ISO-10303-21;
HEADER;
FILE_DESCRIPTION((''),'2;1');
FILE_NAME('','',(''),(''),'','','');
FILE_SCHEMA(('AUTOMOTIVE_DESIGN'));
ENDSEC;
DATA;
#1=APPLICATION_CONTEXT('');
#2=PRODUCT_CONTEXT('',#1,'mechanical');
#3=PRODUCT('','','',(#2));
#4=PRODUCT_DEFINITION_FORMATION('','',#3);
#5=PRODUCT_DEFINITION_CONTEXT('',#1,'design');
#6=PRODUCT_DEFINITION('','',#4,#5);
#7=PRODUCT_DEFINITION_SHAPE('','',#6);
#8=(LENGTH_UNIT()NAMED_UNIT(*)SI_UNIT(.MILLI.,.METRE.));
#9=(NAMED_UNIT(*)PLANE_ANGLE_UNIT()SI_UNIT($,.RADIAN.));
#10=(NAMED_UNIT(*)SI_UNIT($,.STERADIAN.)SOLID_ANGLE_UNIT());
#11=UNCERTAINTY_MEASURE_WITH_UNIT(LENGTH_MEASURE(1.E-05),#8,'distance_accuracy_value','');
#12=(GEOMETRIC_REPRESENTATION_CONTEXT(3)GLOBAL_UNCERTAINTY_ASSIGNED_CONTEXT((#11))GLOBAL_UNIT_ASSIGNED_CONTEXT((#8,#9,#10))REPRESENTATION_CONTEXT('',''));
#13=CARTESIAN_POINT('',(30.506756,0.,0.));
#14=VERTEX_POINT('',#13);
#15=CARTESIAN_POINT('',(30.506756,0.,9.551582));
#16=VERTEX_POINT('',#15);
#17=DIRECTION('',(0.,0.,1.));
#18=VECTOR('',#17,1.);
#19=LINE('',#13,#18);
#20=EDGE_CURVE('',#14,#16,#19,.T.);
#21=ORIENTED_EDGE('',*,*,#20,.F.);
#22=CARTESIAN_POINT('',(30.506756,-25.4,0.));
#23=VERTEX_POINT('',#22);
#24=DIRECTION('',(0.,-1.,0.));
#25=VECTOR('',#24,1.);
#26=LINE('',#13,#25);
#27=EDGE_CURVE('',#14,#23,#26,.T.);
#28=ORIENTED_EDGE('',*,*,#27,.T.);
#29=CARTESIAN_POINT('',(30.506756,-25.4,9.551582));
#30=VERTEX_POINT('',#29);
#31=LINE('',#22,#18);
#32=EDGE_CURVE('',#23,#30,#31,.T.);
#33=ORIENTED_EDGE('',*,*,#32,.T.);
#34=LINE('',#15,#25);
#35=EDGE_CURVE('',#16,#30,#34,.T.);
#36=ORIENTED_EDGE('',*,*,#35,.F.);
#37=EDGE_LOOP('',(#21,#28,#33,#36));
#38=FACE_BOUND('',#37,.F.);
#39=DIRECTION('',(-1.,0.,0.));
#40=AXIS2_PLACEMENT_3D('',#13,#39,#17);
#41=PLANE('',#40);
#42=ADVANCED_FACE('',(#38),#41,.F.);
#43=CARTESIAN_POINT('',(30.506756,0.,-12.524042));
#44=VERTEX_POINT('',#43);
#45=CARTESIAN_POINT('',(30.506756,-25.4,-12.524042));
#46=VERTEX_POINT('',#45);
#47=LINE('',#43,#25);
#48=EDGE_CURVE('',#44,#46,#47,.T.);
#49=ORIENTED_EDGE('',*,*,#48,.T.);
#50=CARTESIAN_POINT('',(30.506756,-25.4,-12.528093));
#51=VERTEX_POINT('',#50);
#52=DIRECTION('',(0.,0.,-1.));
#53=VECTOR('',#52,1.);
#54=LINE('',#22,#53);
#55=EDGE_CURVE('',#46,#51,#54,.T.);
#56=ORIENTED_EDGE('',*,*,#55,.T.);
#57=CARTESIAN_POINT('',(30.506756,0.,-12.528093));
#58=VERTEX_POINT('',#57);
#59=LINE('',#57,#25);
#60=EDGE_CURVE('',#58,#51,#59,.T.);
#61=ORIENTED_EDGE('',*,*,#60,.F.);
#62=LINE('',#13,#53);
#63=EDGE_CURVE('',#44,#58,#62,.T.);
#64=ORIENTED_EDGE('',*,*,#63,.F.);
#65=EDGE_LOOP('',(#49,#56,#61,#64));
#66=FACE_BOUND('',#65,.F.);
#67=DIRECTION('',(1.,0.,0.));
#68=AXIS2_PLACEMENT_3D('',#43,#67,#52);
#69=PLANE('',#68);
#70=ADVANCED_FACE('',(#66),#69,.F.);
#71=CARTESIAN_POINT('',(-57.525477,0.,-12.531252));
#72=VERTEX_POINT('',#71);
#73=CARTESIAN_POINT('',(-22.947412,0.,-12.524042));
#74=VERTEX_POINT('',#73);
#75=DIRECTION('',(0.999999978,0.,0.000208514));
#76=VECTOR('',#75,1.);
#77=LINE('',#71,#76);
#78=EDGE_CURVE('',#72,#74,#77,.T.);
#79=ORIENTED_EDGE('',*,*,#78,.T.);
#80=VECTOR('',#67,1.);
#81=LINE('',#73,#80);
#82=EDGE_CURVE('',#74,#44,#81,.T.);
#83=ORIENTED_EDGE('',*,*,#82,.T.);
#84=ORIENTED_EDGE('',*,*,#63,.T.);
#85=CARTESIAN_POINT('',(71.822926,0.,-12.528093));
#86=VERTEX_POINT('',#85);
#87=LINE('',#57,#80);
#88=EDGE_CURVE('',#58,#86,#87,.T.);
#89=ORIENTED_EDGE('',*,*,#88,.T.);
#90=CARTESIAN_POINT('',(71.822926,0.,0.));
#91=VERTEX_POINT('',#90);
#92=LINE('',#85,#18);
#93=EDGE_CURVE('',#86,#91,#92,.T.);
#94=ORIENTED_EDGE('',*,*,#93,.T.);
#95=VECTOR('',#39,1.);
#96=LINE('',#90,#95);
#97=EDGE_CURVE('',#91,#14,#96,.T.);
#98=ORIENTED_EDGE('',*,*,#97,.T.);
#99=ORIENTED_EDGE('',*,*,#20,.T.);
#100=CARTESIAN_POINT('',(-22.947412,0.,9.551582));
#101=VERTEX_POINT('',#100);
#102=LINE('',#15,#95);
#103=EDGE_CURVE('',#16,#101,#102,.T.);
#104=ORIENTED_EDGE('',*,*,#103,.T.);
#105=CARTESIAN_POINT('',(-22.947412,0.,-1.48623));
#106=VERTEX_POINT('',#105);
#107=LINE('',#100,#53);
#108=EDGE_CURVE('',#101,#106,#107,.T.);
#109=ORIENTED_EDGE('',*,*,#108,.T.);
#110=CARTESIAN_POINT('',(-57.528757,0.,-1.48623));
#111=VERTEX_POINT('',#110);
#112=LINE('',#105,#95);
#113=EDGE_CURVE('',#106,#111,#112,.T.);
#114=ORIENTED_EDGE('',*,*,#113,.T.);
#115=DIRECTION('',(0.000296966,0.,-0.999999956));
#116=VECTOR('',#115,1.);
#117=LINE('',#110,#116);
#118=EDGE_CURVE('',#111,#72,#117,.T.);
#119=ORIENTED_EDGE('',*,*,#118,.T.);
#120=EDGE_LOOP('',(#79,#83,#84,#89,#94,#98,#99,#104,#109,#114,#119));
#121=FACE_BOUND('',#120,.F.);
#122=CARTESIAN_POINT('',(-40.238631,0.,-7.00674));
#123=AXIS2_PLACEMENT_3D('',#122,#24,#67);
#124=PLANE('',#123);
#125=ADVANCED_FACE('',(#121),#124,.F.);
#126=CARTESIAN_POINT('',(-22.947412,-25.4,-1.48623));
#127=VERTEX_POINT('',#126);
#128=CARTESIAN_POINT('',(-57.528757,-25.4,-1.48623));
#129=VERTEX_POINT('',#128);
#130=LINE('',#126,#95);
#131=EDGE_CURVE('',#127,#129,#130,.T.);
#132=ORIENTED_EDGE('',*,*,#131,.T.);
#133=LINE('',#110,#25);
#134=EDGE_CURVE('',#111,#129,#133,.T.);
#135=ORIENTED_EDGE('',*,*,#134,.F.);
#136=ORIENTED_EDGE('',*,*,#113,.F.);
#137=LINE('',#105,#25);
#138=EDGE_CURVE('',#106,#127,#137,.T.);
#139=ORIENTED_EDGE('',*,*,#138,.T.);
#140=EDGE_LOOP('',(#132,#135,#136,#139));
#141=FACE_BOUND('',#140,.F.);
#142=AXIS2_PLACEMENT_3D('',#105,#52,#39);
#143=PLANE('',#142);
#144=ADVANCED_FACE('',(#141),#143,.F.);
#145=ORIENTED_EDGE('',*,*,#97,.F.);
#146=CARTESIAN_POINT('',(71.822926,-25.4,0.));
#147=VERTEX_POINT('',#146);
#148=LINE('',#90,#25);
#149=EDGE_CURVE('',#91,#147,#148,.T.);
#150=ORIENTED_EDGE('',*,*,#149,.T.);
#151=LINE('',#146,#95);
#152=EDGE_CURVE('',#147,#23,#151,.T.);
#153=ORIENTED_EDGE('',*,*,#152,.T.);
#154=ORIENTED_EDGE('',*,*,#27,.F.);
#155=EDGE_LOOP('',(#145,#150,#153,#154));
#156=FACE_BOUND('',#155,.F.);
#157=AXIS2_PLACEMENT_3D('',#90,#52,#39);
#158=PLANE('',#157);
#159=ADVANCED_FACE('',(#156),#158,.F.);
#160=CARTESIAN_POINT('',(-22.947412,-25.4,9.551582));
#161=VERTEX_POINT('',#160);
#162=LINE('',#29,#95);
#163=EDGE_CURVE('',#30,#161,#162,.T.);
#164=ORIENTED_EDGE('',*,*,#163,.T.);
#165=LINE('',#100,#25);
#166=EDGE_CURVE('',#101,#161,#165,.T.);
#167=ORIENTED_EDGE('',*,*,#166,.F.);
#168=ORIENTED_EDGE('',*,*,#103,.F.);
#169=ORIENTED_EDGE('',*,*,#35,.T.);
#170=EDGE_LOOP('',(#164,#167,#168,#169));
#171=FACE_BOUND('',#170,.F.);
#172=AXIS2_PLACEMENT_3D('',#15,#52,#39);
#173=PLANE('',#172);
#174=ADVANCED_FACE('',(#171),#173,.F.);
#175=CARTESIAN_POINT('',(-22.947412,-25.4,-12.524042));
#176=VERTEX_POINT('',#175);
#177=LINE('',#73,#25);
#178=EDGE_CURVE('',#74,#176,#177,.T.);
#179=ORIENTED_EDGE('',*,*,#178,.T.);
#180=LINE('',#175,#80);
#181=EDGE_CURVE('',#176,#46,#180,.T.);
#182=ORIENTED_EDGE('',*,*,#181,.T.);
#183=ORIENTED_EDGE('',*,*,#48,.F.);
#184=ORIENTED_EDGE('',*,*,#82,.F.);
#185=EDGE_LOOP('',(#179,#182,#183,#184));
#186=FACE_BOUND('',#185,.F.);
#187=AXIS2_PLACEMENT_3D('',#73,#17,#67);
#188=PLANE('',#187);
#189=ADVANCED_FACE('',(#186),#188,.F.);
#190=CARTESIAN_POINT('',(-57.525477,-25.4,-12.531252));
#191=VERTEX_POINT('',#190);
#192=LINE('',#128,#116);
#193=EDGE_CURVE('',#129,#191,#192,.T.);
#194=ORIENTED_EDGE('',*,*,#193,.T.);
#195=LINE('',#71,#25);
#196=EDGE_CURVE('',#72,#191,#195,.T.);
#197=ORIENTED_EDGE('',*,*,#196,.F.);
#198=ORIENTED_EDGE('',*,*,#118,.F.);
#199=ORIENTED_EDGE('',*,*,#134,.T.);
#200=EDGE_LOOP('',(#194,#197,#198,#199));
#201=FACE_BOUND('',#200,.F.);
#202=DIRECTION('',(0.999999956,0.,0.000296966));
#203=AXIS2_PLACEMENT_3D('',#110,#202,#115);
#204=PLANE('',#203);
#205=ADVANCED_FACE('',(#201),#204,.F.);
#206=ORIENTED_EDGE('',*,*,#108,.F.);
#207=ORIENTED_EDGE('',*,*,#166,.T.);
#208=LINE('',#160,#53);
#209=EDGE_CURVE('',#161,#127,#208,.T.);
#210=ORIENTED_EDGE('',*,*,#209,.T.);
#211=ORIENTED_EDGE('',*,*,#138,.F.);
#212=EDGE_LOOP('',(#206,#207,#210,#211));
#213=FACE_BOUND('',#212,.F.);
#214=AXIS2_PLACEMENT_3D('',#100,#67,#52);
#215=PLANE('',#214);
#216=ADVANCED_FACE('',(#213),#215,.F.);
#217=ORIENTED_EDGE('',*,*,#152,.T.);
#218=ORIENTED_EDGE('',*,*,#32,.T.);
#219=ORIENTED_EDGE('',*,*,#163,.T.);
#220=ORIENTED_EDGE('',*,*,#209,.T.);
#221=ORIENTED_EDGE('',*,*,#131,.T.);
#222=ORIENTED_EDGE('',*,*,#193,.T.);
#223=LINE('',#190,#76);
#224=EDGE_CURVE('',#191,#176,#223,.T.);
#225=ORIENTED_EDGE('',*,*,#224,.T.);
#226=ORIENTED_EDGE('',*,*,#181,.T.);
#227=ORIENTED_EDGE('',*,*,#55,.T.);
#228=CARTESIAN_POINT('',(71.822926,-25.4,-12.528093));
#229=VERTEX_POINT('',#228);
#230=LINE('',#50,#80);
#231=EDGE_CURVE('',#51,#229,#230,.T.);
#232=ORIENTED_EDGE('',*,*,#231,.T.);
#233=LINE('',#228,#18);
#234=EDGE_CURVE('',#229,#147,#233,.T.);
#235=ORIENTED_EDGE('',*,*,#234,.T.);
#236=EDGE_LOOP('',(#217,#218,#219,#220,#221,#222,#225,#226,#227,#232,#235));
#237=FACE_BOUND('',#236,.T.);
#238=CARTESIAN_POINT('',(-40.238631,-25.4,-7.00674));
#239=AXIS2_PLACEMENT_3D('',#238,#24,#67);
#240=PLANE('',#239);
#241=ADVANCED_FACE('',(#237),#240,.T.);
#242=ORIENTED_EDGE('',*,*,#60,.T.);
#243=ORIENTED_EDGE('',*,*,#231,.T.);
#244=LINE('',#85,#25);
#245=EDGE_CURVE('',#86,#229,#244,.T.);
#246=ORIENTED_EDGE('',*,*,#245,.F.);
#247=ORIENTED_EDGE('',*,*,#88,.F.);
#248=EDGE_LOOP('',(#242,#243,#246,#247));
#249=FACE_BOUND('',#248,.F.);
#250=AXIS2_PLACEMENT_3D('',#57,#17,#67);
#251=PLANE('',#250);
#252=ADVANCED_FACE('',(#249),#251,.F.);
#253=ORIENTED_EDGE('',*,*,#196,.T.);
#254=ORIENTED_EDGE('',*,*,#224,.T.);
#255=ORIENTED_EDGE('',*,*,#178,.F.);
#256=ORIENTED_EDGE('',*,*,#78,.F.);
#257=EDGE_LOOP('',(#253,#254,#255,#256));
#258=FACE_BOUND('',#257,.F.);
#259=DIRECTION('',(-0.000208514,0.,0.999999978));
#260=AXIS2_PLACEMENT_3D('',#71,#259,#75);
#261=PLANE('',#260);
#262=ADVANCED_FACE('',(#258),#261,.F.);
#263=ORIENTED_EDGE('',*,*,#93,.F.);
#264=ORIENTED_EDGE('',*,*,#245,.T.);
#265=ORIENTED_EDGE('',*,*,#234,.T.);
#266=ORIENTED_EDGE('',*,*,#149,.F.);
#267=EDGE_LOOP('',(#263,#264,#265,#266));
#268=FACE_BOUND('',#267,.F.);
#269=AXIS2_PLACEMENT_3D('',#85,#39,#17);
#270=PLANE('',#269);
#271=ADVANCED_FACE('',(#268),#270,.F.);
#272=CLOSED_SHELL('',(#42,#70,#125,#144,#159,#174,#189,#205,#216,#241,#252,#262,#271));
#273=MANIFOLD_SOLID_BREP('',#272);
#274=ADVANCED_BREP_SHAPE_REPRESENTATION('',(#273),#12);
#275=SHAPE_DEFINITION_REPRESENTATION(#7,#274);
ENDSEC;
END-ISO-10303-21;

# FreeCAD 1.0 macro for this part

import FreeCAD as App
import Part
import Sketcher
from FreeCAD import Vector
Q = App.Units.Quantity


def add_polygon(sketch, points):
    """Adds a closed chain of lines whose ends are joined by coincident constraints."""
    first, n = sketch.GeometryCount, len(points)
    for a, b in zip(points, points[1:] + points[:1]):
        sketch.addGeometry(Part.LineSegment(App.Vector(*a, 0), App.Vector(*b, 0)), False)
    for i in range(n):
        sketch.addConstraint(Sketcher.Constraint("Coincident", first + i, 2, first + (i + 1) % n, 1))

doc = App.newDocument("Part")
params = doc.addObject("Spreadsheet::Sheet", "Params")
for row, (alias, value) in enumerate([
    ("pad1_length", "1 in"),
], start=1):
    params.set(f"A{row}", alias)
    params.set(f"B{row}", "=" + value)
    params.setAlias(f"B{row}", alias)

body = doc.addObject("PartDesign::Body", "Body")

sketch1 = body.newObject("Sketcher::SketchObject", "Sketch")
sketch1.AttachmentSupport = (doc.getObject("XZ_Plane"), [""])
sketch1.MapMode = "FlatFace"
add_polygon(sketch1, [(-22.947412, -1.48623), (-57.528757, -1.48623), (-57.525477, -12.531252), (-22.947412, -12.524042), (30.506756, -12.524042), (30.506756, -12.528093), (71.822926, -12.528093), (71.822926, 0), (30.506756, 0), (30.506756, 9.551582), (-22.947412, 9.551582)])
sketch1.addConstraint([
    Sketcher.Constraint("Horizontal", 0),
    Sketcher.Constraint("Horizontal", 3),
    Sketcher.Constraint("Vertical", 4),
    Sketcher.Constraint("Horizontal", 5),
    Sketcher.Constraint("Vertical", 6),
    Sketcher.Constraint("Horizontal", 7),
    Sketcher.Constraint("Vertical", 8),
    Sketcher.Constraint("Horizontal", 9),
    Sketcher.Constraint("Vertical", 10),
    Sketcher.Constraint("PointOnObject", 6, 2, -1),
    Sketcher.Constraint("Vertical", 4, 2, 7, 2),
    Sketcher.Constraint("Vertical", 2, 2, 9, 2),
    Sketcher.Constraint("DistanceX", 5, 1, 5, 2, Q("41.31617 mm")),
    Sketcher.Constraint("DistanceY", 4, 2, 4, 1, Q("0.004051 mm")),
    Sketcher.Constraint("DistanceY", 10, 2, 10, 1, Q("11.037812 mm")),
    Sketcher.Constraint("DistanceX", 0, 2, 0, 1, Q("34.581345 mm")),
    Sketcher.Constraint("DistanceX", 3, 1, 3, 2, Q("53.454168 mm")),
    Sketcher.Constraint("DistanceY", 6, 1, 6, 2, Q("12.528093 mm")),
    Sketcher.Constraint("DistanceY", 8, 1, 8, 2, Q("9.551582 mm")),
    Sketcher.Constraint("DistanceX", 2, 2, -1, 1, Q("22.947412 mm")),
    Sketcher.Constraint("DistanceX", 0, 2, 1, 2, Q("0.00328 mm")),
    Sketcher.Constraint("DistanceY", 1, 2, 2, 2, Q("0.00721 mm")),
])
pad1 = body.newObject("PartDesign::Pad", "Pad")
pad1.Profile = sketch1
pad1.setExpression("Length", "Params.pad1_length")

doc.recompute()
